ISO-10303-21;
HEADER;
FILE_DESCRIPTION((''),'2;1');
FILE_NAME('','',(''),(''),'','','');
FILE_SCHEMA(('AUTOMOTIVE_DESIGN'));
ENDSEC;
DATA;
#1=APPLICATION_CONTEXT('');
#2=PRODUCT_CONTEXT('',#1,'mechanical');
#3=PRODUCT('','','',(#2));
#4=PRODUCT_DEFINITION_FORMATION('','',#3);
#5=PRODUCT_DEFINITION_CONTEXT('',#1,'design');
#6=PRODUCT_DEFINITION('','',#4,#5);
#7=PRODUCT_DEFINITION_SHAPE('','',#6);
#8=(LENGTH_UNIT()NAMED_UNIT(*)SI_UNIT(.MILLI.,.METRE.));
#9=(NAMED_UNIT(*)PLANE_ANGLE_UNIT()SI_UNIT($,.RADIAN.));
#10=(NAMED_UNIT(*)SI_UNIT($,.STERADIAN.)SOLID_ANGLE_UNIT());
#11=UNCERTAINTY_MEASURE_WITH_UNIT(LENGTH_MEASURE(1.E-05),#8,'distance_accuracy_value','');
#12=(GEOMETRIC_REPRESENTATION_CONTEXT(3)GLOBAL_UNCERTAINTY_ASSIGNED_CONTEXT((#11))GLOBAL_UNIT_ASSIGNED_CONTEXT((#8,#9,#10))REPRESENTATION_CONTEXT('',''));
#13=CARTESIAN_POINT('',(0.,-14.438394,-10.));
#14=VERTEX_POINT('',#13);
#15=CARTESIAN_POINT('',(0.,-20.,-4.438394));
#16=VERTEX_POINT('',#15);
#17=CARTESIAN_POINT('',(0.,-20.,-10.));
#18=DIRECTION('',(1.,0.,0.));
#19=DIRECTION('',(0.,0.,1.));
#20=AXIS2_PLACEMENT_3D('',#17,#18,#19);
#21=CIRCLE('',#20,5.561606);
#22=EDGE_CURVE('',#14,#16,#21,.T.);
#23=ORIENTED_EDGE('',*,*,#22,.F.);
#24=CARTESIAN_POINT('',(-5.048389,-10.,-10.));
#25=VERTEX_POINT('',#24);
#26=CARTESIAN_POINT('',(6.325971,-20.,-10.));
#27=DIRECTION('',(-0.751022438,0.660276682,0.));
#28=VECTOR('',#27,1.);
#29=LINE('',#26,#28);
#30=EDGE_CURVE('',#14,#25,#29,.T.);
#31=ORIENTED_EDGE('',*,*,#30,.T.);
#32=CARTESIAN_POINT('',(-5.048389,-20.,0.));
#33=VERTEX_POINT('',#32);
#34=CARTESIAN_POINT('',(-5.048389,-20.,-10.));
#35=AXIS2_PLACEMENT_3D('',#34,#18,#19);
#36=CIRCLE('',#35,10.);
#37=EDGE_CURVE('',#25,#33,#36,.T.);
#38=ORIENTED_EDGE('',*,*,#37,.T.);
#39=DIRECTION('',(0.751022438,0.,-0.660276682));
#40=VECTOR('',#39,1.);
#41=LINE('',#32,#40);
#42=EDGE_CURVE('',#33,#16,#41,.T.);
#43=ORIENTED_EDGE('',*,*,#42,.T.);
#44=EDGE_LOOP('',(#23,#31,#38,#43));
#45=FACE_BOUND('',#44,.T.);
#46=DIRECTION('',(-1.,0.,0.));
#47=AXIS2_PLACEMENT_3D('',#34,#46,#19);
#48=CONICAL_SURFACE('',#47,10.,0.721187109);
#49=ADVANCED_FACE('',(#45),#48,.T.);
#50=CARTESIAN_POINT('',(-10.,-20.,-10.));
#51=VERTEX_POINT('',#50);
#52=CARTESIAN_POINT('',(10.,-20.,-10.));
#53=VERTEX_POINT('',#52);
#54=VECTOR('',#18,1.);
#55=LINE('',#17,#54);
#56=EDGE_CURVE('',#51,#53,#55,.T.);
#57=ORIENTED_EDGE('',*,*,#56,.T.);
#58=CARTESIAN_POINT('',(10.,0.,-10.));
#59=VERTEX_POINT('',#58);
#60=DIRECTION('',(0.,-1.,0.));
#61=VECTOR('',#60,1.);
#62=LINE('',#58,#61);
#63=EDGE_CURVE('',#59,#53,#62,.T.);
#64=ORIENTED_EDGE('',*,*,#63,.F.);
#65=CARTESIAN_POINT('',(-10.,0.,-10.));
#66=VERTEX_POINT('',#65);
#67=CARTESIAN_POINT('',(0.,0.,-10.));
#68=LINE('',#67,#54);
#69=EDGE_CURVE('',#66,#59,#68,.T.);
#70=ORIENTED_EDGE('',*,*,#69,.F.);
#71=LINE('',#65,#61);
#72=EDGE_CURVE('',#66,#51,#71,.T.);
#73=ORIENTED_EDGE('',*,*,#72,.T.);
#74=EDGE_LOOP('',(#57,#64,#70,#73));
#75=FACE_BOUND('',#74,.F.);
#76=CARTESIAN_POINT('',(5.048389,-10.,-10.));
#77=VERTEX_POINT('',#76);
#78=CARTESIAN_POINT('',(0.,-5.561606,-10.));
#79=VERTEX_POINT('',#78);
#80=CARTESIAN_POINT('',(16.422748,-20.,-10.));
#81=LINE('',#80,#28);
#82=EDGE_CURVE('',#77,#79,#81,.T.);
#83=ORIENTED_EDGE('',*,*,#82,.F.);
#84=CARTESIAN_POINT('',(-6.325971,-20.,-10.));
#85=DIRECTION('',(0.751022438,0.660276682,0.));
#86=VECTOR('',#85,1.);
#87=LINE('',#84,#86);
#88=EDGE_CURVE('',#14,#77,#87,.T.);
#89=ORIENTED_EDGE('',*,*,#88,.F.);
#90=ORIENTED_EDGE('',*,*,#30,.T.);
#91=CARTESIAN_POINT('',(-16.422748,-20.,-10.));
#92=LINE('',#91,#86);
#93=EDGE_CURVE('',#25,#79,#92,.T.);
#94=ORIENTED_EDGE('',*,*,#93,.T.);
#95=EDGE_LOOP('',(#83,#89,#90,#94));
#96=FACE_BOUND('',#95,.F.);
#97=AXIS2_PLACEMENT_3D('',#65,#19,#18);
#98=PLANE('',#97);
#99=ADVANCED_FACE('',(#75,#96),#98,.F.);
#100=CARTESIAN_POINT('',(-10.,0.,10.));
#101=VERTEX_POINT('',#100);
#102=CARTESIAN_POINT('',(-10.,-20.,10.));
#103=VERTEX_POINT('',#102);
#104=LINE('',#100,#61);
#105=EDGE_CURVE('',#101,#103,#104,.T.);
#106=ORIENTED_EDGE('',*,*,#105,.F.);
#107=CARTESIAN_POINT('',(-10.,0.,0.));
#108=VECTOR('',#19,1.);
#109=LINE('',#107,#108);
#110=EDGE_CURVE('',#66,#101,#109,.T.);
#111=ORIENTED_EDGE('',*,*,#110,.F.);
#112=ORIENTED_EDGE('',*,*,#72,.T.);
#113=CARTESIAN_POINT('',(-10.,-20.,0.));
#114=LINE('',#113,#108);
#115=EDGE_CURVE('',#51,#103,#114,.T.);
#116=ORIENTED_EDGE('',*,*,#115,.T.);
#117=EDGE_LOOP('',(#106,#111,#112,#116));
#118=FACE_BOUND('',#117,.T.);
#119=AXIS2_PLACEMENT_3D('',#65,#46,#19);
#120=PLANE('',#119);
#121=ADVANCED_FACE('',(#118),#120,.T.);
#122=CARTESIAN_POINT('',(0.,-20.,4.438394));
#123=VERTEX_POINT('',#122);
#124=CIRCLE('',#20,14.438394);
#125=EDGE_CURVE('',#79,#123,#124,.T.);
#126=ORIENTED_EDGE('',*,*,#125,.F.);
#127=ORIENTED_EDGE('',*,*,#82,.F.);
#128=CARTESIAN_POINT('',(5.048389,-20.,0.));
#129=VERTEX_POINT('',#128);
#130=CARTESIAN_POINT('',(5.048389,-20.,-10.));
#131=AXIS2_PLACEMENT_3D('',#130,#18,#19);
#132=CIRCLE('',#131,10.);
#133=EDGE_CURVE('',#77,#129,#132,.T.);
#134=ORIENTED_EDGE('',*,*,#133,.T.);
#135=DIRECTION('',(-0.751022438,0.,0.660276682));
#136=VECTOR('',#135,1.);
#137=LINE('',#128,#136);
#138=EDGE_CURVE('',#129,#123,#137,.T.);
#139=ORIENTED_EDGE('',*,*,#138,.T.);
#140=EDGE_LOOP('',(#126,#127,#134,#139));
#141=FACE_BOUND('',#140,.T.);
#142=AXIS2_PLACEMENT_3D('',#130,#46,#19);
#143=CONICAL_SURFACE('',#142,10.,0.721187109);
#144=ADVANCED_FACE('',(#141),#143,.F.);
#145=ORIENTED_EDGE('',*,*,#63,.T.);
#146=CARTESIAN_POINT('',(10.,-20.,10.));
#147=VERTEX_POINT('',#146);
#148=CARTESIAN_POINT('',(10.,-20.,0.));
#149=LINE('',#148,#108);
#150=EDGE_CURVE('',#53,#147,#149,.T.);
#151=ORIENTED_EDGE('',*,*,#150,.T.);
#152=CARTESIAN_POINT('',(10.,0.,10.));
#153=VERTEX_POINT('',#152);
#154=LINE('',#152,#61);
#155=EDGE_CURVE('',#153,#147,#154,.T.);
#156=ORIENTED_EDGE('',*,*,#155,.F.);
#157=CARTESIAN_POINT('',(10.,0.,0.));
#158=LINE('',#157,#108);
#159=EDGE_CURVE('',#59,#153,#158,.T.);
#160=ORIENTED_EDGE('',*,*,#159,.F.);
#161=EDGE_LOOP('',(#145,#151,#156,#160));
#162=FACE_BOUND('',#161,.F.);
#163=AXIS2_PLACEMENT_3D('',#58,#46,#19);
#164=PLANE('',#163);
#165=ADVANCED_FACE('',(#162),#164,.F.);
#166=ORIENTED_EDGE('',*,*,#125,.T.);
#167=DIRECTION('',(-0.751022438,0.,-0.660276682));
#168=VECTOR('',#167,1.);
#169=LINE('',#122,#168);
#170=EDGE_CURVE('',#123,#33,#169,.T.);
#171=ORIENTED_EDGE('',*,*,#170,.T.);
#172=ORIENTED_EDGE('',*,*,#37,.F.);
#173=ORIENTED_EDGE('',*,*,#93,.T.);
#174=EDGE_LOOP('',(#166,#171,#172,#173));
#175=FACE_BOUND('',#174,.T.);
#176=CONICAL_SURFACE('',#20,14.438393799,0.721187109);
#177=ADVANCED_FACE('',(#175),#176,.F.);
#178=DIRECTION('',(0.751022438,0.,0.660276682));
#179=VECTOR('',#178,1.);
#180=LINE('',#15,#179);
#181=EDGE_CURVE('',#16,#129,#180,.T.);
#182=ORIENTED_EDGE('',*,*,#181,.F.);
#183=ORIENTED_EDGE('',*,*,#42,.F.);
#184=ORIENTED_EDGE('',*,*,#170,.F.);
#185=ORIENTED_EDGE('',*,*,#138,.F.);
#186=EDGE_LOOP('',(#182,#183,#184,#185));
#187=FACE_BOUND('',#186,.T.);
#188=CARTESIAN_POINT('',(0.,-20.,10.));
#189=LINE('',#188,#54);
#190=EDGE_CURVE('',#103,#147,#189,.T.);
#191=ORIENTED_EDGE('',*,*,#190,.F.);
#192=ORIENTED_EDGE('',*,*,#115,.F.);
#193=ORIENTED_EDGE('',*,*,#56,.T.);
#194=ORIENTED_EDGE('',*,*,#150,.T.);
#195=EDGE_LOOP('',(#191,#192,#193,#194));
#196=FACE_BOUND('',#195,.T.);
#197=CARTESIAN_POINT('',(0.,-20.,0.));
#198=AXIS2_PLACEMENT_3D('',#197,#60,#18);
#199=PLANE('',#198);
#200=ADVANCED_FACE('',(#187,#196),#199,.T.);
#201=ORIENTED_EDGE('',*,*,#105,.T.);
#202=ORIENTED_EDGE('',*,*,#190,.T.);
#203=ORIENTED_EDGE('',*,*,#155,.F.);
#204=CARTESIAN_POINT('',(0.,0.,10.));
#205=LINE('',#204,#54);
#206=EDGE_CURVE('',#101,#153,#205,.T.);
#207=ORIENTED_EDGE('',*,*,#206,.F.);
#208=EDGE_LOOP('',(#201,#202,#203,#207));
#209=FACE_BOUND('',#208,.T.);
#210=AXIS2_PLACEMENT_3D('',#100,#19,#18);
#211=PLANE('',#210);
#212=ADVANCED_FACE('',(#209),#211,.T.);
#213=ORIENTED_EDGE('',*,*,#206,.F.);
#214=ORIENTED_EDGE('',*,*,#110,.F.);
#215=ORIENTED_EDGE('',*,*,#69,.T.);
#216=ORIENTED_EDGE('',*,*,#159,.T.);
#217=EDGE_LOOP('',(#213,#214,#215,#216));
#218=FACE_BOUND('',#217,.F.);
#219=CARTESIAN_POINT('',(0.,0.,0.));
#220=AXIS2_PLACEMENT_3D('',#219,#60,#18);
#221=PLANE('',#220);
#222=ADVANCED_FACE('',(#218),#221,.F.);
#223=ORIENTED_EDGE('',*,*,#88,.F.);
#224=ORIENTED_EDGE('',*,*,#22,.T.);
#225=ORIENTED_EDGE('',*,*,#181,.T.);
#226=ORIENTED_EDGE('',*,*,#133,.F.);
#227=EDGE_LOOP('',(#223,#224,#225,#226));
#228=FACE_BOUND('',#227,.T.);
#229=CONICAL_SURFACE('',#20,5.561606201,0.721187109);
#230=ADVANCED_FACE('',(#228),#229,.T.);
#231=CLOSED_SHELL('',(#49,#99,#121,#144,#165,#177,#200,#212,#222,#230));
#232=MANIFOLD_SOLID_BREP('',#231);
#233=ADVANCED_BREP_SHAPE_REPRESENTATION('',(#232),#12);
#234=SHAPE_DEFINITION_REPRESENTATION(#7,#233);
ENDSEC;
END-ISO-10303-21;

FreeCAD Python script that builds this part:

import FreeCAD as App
import Part
import Sketcher

V = App.Vector

doc = App.newDocument("Part")
body = doc.addObject("PartDesign::Body", "Body")

# Sketch on XZ plane
sketch1 = body.newObject("Sketcher::SketchObject", "Sketch")
sketch1.AttachmentSupport = (doc.getObject("XZ_Plane"), [""])
sketch1.MapMode = "FlatFace"
sketch1.addGeometry(Part.LineSegment(V(-10, 10, 0), V(-10, -10, 0)), False)
sketch1.addGeometry(Part.LineSegment(V(-10, -10, 0), V(10, -10, 0)), False)
sketch1.addGeometry(Part.LineSegment(V(10, -10, 0), V(10, 10, 0)), False)
sketch1.addGeometry(Part.LineSegment(V(10, 10, 0), V(-10, 10, 0)), False)
sketch1.addConstraint(Sketcher.Constraint("Coincident", 0, 2, 1, 1))
sketch1.addConstraint(Sketcher.Constraint("Coincident", 1, 2, 2, 1))
sketch1.addConstraint(Sketcher.Constraint("Coincident", 2, 2, 3, 1))
sketch1.addConstraint(Sketcher.Constraint("Coincident", 3, 2, 0, 1))
sketch1.addConstraint(Sketcher.Constraint("Vertical", 0))
sketch1.addConstraint(Sketcher.Constraint("Horizontal", 1))
sketch1.addConstraint(Sketcher.Constraint("Vertical", 2))
sketch1.addConstraint(Sketcher.Constraint("Horizontal", 3))
sketch1.addConstraint(Sketcher.Constraint("Symmetric", 0, 2, 2, 2, -1, 1))
sketch1.addConstraint(Sketcher.Constraint("Equal", 3, 0))
sketch1.addConstraint(Sketcher.Constraint("DistanceX", 1, 1, 1, 2, 20.0))
pad1 = body.newObject("PartDesign::Pad", "Pad")
pad1.Profile = sketch1
pad1.Length = 20

# Sketch on XZ plane
sketch2 = body.newObject("Sketcher::SketchObject", "Sketch001")
sketch2.AttachmentSupport = (doc.getObject("XZ_Plane"), [""])
sketch2.MapMode = "FlatFace"
sketch2.AttachmentOffset = App.Placement(V(0, 0, 20), App.Rotation())
sketch2.addGeometry(Part.LineSegment(V(0, 4.438394, 0), V(-5.048389, 0, 0)), False)
sketch2.addGeometry(Part.LineSegment(V(-5.048389, 0, 0), V(0, -4.438394, 0)), False)
sketch2.addGeometry(Part.LineSegment(V(0, -4.438394, 0), V(5.048389, 0, 0)), False)
sketch2.addGeometry(Part.LineSegment(V(5.048389, 0, 0), V(0, 4.438394, 0)), False)
sketch2.addGeometry(Part.LineSegment(V(-5.048389, -10, 0), V(5.048389, -10, 0)), True)  # axis
sketch2.addConstraint(Sketcher.Constraint("Coincident", 0, 2, 1, 1))
sketch2.addConstraint(Sketcher.Constraint("Coincident", 1, 2, 2, 1))
sketch2.addConstraint(Sketcher.Constraint("Coincident", 2, 2, 3, 1))
sketch2.addConstraint(Sketcher.Constraint("Coincident", 3, 2, 0, 1))
sketch2.addConstraint(Sketcher.Constraint("Horizontal", 4))
sketch2.addConstraint(Sketcher.Constraint("Symmetric", 0, 2, 2, 2, -1, 1))
sketch2.addConstraint(Sketcher.Constraint("Symmetric", 1, 2, 3, 2, -1, 1))
sketch2.addConstraint(Sketcher.Constraint("PointOnObject", 0, 2, -1))
sketch2.addConstraint(Sketcher.Constraint("PointOnObject", 1, 2, -2))
sketch2.addConstraint(Sketcher.Constraint("Vertical", 0, 2, 4, 1))
sketch2.addConstraint(Sketcher.Constraint("Vertical", 2, 2, 4, 2))
sketch2.addConstraint(Sketcher.Constraint("DistanceY", 4, 1, -1, 1, 10.0))
sketch2.addConstraint(Sketcher.Constraint("Distance", 0, 6.722021))
sketch2.addConstraint(Sketcher.Constraint("DistanceX", 4, 1, 4, 2, 10.096777))
groove = body.newObject("PartDesign::Groove", "Groove")
groove.Profile = sketch2
groove.ReferenceAxis = (sketch2, ["Axis0"])
groove.Angle = 360

doc.recompute()
